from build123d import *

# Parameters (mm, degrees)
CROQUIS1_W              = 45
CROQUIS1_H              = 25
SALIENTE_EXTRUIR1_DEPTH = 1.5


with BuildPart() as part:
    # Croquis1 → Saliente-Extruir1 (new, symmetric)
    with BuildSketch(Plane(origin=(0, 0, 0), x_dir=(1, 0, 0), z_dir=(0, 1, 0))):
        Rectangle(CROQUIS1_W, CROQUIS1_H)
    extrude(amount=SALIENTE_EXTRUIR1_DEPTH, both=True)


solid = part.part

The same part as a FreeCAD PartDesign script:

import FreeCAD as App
import Part
import Sketcher

doc = App.newDocument("Part")
body = doc.addObject("PartDesign::Body", "Body")

# Sketch on XZ plane
sketch1 = body.newObject("Sketcher::SketchObject", "Sketch")
sketch1.AttachmentSupport = (doc.getObject("XZ_Plane"), [""])
sketch1.MapMode = "FlatFace"
sketch1.addGeometry([
    Part.LineSegment(App.Vector(-22.5, -12.5, 0), App.Vector(-22.5, 12.5, 0)),
    Part.LineSegment(App.Vector(-22.5, 12.5, 0), App.Vector(22.5, 12.5, 0)),
    Part.LineSegment(App.Vector(22.5, 12.5, 0), App.Vector(22.5, -12.5, 0)),
    Part.LineSegment(App.Vector(22.5, -12.5, 0), App.Vector(-22.5, -12.5, 0)),
], False)
sketch1.addConstraint([
    Sketcher.Constraint("Coincident", 0, 2, 1, 1),
    Sketcher.Constraint("Coincident", 1, 2, 2, 1),
    Sketcher.Constraint("Coincident", 2, 2, 3, 1),
    Sketcher.Constraint("Coincident", 3, 2, 0, 1),
    Sketcher.Constraint("Vertical", 0),
    Sketcher.Constraint("Horizontal", 1),
    Sketcher.Constraint("Vertical", 2),
    Sketcher.Constraint("Horizontal", 3),
    Sketcher.Constraint("Symmetric", 0, 2, 2, 2, -1, 1),
    Sketcher.Constraint("DistanceX", 1, 1, 1, 2, 45.0),
    Sketcher.Constraint("DistanceY", 0, 1, 0, 2, 25.0),
])
pad1 = body.newObject("PartDesign::Pad", "Pad")
pad1.Profile = sketch1
pad1.Length = 3
pad1.Midplane = True

doc.recompute()
